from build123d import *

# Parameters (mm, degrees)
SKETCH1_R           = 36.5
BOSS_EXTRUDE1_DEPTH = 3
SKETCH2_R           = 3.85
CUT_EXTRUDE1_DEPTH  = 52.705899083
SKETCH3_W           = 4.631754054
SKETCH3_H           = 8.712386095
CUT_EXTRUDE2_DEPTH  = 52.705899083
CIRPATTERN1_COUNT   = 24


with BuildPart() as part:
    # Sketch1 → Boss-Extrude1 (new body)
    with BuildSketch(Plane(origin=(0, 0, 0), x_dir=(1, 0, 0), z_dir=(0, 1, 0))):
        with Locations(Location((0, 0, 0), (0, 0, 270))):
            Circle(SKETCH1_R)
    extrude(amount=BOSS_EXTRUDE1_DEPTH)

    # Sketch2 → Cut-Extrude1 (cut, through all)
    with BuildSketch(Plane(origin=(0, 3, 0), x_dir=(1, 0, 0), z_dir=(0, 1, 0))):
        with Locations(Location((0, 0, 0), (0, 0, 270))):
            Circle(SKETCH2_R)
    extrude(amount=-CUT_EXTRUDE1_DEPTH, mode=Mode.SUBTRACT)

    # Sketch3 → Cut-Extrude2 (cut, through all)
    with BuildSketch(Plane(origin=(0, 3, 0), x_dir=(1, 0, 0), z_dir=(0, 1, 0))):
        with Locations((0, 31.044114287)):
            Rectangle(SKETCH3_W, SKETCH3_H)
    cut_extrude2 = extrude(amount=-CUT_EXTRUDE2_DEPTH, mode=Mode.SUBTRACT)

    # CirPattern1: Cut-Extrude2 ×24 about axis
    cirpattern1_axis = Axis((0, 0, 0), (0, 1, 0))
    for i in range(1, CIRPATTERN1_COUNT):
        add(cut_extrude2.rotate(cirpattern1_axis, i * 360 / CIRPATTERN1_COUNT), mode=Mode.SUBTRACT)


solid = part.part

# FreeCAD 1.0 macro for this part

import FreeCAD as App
import Part
import Sketcher

V = App.Vector
Q = App.Units.Quantity

doc = App.newDocument("Part")
body = doc.addObject("PartDesign::Body", "Body")

sketch1 = body.newObject("Sketcher::SketchObject", "Sketch")
sketch1.AttachmentSupport = (doc.getObject("XZ_Plane"), [""])
sketch1.MapMode = "FlatFace"
sketch1.addGeometry(Part.Circle(V(0, 0, 0), V(0, 0, 1), 36), False)
sketch1.addConstraint(Sketcher.Constraint("Coincident", 0, 3, -1, 1))
sketch1.addConstraint(Sketcher.Constraint("Diameter", 0, Q("73 mm")))
pad1 = body.newObject("PartDesign::Pad", "Pad")
pad1.Profile = sketch1
pad1.Length = 3
pad1.Reversed = True

sketch2 = body.newObject("Sketcher::SketchObject", "Sketch001")
sketch2.AttachmentSupport = (doc.getObject("XZ_Plane"), [""])
sketch2.MapMode = "FlatFace"
sketch2.AttachmentOffset = App.Placement(V(0, 0, -3), App.Rotation())
sketch2.addGeometry(Part.Circle(V(0, 0, 0), V(0, 0, 1), 3.9), False)
sketch2.addConstraint(Sketcher.Constraint("Coincident", 0, 3, -1, 1))
sketch2.addConstraint(Sketcher.Constraint("Diameter", 0, Q("7.7 mm")))
pocket1 = body.newObject("PartDesign::Pocket", "Pocket")
pocket1.Profile = sketch2
pocket1.Type = "ThroughAll"
pocket1.Reversed = True

sketch3 = body.newObject("Sketcher::SketchObject", "Sketch002")
sketch3.AttachmentSupport = (doc.getObject("XZ_Plane"), [""])
sketch3.MapMode = "FlatFace"
sketch3.AttachmentOffset = App.Placement(V(0, 0, -3), App.Rotation())
sketch3.addGeometry(Part.LineSegment(V(-2.3, -35.4, 0), V(-2.3, -26.7, 0)), False)
sketch3.addGeometry(Part.LineSegment(V(-2.3, -26.7, 0), V(2.3, -26.7, 0)), False)
sketch3.addGeometry(Part.LineSegment(V(2.3, -26.7, 0), V(2.3, -35.4, 0)), False)
sketch3.addGeometry(Part.LineSegment(V(2.3, -35.4, 0), V(-2.3, -35.4, 0)), False)
sketch3.addConstraint(Sketcher.Constraint("Coincident", 0, 2, 1, 1))
sketch3.addConstraint(Sketcher.Constraint("Coincident", 1, 2, 2, 1))
sketch3.addConstraint(Sketcher.Constraint("Coincident", 2, 2, 3, 1))
sketch3.addConstraint(Sketcher.Constraint("Coincident", 3, 2, 0, 1))
sketch3.addConstraint(Sketcher.Constraint("Vertical", 0))
sketch3.addConstraint(Sketcher.Constraint("Horizontal", 1))
sketch3.addConstraint(Sketcher.Constraint("Vertical", 2))
sketch3.addConstraint(Sketcher.Constraint("Horizontal", 3))
sketch3.addConstraint(Sketcher.Constraint("DistanceX", 1, 1, 1, 2, Q("4.631754 mm")))
sketch3.addConstraint(Sketcher.Constraint("DistanceY", 0, 1, 0, 2, Q("8.712386 mm")))
sketch3.addConstraint(Sketcher.Constraint("DistanceY", 0, 2, -1, 1, Q("26.687921 mm")))
sketch3.addConstraint(Sketcher.Constraint("DistanceX", 0, 2, -1, 1, Q("2.315877 mm")))
pocket2 = body.newObject("PartDesign::Pocket", "Pocket001")
pocket2.Profile = sketch3
pocket2.Type = "ThroughAll"
pocket2.Reversed = True
doc.recompute()

polarpattern = body.newObject("PartDesign::PolarPattern", "PolarPattern")
polarpattern.Originals = [pocket2]
polarpattern.Axis = (doc.getObject("Y_Axis"), [""])
polarpattern.Angle = 360
polarpattern.Occurrences = 24
body.Tip = polarpattern

doc.recompute()
